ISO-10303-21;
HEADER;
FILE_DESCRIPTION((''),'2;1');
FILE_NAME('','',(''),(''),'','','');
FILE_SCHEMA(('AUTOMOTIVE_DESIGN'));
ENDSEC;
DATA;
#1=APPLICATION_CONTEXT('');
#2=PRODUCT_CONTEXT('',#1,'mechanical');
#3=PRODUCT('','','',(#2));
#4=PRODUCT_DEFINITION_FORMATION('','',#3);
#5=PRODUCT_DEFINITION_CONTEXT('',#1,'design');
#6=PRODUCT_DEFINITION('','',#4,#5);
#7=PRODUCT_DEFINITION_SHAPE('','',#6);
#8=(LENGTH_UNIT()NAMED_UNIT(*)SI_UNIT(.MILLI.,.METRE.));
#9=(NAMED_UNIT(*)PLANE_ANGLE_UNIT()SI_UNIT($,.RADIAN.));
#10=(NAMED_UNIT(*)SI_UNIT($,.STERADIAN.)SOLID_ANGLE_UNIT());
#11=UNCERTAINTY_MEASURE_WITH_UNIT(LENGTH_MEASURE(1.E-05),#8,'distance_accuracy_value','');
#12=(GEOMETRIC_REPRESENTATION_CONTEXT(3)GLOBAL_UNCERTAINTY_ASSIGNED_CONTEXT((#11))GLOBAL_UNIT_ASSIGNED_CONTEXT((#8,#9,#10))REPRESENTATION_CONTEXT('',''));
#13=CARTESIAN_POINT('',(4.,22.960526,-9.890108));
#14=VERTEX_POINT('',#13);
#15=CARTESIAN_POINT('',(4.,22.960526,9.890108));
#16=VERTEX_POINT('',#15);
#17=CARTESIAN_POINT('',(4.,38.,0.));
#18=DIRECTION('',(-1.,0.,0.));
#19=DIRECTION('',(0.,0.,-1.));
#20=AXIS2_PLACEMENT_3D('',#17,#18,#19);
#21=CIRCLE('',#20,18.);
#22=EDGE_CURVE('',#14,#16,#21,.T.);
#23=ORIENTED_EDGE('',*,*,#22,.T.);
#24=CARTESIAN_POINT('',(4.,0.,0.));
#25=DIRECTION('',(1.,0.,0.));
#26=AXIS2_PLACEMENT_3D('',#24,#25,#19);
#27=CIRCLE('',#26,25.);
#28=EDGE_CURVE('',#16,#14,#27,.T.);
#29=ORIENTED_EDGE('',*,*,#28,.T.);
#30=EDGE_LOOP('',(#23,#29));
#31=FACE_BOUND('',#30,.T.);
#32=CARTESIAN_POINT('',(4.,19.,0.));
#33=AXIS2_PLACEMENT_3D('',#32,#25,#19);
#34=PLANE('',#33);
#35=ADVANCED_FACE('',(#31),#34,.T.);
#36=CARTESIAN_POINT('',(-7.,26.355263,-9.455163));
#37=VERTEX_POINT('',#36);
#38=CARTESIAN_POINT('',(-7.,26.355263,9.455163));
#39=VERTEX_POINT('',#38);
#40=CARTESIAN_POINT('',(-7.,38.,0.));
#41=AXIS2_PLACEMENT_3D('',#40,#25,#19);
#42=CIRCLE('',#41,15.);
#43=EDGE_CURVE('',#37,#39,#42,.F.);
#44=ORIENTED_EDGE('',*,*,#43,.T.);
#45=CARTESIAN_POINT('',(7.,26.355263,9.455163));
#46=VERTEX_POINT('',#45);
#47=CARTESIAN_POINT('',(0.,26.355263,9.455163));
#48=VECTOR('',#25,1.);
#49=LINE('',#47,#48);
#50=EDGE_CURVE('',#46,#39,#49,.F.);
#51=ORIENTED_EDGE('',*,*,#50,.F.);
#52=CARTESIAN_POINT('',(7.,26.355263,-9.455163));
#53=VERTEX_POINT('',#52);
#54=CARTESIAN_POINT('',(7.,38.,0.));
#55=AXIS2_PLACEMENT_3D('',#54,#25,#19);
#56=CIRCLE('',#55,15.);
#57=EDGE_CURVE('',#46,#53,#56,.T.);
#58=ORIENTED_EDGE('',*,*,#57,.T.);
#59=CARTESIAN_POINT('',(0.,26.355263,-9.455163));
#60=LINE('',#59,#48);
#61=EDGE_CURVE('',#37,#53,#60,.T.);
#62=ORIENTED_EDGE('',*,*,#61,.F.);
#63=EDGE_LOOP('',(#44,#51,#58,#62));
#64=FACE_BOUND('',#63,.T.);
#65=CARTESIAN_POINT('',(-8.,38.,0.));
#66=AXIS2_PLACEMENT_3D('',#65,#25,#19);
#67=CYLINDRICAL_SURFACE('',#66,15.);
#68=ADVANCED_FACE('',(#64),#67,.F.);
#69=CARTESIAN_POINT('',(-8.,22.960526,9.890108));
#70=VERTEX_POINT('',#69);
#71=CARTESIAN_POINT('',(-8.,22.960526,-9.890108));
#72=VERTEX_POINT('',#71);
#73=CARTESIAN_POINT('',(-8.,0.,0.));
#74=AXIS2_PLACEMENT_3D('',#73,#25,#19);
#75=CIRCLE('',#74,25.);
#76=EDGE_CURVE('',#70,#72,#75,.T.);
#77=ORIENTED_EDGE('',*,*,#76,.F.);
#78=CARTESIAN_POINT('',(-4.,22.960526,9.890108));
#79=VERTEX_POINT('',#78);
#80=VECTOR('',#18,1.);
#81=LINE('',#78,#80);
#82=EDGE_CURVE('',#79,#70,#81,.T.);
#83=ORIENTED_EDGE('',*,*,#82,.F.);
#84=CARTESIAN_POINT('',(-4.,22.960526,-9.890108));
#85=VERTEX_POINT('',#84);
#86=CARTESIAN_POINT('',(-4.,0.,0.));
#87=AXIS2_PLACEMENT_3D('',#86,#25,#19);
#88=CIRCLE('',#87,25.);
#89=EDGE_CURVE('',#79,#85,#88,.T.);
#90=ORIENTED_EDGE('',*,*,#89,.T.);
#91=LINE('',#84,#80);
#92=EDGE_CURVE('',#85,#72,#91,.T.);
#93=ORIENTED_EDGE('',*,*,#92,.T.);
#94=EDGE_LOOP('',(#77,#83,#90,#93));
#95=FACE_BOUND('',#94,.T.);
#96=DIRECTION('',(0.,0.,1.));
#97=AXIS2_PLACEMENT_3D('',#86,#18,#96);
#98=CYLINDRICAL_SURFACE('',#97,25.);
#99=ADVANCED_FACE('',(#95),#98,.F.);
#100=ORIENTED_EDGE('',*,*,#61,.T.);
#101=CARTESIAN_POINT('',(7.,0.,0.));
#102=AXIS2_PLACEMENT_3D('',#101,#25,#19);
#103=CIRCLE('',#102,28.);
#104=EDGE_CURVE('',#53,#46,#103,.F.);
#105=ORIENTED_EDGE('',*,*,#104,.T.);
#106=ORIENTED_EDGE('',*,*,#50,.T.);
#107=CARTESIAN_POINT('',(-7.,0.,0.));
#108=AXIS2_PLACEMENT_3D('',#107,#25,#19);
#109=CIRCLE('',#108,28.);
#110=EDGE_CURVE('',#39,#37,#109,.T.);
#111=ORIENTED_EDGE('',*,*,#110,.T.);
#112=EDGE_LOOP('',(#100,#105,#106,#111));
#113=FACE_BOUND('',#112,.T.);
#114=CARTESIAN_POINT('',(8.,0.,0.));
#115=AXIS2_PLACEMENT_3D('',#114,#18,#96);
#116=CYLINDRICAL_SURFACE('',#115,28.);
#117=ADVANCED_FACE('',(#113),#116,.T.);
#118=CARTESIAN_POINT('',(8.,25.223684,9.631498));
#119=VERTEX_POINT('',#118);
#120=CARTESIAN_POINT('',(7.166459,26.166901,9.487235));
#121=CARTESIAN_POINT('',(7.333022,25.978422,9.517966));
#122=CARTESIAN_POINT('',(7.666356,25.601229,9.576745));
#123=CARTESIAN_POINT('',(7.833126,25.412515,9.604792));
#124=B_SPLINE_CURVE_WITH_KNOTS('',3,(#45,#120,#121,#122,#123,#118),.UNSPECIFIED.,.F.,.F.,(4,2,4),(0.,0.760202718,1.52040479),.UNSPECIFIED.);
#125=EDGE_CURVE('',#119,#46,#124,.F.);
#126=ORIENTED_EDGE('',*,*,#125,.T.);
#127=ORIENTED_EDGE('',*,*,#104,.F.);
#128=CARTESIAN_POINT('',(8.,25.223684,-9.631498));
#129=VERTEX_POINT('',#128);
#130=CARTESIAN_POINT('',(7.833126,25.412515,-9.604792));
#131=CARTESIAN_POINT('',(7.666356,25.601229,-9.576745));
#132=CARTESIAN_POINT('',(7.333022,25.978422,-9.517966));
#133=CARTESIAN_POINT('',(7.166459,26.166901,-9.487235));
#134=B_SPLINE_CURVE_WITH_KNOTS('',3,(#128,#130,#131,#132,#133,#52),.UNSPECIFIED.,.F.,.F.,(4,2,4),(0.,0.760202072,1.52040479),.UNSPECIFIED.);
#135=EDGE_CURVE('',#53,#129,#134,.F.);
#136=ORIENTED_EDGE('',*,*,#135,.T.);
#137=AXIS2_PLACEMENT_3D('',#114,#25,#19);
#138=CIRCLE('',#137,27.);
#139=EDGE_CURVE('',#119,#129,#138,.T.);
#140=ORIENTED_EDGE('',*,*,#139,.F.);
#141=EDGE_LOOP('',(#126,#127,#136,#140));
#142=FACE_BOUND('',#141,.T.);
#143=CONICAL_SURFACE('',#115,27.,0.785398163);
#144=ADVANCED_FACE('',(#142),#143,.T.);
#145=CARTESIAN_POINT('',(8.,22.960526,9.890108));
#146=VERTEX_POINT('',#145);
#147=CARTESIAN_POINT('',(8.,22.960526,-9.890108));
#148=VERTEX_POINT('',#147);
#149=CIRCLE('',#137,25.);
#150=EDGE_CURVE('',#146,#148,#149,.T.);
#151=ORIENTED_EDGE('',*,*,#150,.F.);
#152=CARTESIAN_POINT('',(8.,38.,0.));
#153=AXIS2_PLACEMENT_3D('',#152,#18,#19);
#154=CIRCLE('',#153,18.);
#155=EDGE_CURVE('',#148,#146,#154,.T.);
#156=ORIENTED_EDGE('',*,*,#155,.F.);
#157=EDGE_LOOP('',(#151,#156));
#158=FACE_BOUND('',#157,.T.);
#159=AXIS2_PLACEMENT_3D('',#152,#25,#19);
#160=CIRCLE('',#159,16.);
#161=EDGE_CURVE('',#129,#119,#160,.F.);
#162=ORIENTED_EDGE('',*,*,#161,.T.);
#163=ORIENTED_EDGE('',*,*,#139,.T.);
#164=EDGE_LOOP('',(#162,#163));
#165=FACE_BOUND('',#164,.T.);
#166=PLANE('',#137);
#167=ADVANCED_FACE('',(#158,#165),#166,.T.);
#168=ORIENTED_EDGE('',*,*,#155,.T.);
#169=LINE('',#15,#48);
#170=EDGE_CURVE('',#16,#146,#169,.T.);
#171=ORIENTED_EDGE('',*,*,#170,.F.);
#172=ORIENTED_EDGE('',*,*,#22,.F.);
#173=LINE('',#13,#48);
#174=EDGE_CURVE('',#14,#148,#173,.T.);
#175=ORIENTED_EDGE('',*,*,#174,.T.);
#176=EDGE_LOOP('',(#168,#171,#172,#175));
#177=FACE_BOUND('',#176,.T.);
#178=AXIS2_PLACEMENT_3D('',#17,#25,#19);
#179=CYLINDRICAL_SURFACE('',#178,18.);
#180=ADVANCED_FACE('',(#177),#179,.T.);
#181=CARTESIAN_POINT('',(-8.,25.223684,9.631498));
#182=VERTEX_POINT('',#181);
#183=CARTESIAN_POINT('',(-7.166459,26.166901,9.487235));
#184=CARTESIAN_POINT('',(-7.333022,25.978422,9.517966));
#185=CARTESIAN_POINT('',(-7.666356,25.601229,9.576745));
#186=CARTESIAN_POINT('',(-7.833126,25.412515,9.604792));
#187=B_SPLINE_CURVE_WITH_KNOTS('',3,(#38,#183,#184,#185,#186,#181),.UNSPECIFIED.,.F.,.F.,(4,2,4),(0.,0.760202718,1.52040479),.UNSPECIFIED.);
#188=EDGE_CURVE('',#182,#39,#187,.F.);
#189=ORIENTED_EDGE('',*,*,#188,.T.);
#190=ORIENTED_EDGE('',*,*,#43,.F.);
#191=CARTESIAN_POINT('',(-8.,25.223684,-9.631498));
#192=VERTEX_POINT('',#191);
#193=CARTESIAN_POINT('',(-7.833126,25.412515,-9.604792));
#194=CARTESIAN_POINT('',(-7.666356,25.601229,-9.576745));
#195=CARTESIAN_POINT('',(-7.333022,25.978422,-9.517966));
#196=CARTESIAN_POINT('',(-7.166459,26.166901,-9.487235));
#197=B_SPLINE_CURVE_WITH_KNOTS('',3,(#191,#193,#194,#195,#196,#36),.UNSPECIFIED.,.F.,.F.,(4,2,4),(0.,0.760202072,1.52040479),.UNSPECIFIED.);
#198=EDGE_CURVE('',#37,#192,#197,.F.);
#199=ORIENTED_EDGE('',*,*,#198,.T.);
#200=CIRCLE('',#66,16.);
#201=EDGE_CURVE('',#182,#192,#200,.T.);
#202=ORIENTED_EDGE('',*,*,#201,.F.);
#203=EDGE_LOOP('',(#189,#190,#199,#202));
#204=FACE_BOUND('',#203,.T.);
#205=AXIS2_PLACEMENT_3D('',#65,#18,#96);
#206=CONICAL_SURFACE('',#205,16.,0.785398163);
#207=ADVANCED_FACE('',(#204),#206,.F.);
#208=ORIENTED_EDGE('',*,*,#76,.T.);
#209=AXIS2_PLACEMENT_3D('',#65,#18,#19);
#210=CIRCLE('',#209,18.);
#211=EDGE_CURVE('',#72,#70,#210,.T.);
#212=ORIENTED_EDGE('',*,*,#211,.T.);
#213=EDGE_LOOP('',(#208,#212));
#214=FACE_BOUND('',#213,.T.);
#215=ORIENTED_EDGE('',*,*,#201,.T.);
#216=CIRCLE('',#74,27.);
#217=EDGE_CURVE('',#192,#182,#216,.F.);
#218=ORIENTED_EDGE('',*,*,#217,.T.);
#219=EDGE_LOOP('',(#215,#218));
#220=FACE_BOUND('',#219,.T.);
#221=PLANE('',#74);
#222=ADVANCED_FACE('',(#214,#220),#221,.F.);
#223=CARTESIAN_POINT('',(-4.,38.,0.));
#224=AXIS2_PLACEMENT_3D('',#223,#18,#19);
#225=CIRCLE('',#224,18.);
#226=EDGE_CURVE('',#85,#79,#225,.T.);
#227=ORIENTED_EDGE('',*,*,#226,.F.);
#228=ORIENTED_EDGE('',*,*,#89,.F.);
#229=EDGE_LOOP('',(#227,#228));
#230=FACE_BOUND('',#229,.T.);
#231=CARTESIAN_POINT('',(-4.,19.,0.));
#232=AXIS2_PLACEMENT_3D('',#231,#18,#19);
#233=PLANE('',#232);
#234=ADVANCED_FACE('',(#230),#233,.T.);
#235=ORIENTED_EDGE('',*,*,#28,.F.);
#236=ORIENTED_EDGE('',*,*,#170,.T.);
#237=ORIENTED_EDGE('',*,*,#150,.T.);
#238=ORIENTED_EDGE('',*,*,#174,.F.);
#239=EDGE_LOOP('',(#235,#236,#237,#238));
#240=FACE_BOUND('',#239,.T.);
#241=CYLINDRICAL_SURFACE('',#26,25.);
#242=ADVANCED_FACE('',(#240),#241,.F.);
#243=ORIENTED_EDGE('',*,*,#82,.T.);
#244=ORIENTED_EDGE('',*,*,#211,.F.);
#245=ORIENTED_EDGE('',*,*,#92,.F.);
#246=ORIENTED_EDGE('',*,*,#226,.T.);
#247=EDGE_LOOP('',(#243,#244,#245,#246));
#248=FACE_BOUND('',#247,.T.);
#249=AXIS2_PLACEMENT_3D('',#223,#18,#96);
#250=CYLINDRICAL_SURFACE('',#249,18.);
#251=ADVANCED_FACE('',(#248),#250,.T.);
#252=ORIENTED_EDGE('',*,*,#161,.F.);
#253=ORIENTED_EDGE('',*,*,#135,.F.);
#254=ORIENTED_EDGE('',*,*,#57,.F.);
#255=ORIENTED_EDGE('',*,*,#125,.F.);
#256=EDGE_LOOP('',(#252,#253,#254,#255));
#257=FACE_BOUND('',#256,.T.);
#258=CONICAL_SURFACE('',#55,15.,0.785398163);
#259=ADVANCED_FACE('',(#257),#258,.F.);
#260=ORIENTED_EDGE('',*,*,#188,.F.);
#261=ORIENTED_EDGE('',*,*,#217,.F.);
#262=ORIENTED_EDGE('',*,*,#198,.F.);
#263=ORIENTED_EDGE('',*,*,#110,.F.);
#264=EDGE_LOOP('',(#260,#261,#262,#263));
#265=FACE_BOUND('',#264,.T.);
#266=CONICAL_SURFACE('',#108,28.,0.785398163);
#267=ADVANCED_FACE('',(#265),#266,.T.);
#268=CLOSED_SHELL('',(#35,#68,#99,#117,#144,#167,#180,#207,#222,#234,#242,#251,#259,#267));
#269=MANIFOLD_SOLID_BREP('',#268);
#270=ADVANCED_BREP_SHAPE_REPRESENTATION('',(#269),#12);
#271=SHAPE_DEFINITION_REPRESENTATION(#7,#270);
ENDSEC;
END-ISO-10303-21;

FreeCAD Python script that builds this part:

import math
import FreeCAD as App
import Part
import Sketcher
from FreeCAD import Vector


def edges_at(feature, points):
    """Names of the edges that pass closest to the given points."""
    edges = feature.Shape.Edges
    near = lambda p: min(range(len(edges)), key=lambda i: edges[i].distToShape(Part.Vertex(*p))[0])
    return sorted({f"Edge{near(p) + 1}" for p in points})

doc = App.newDocument("Part")
body = doc.addObject("PartDesign::Body", "Body")

sketch1 = body.newObject("Sketcher::SketchObject", "Sketch")
sketch1.AttachmentSupport = (doc.getObject("YZ_Plane"), [""])
sketch1.MapMode = "FlatFace"
sketch1.addGeometry(Part.Circle(Vector(0, 0, 0), Vector(0, 0, 1), 28), False)
sketch1.addConstraint([
    Sketcher.Constraint("Coincident", 0, 3, -1, 1),
    Sketcher.Constraint("Diameter", 0, 56.0),
])
pad1 = body.newObject("PartDesign::Pad", "Pad")
pad1.Profile = sketch1
pad1.Length = 16
pad1.Midplane = True

sketch2 = body.newObject("Sketcher::SketchObject", "Sketch001")
sketch2.AttachmentSupport = (doc.getObject("YZ_Plane"), [""])
sketch2.MapMode = "FlatFace"
sketch2.AttachmentOffset = App.Placement(Vector(0, 0, 8), App.Rotation())
sketch2.addGeometry(Part.Circle(Vector(38, 0, 0), Vector(0, 0, 1), 15), False)
sketch2.addConstraint([
    Sketcher.Constraint("PointOnObject", 0, 3, -1),
    Sketcher.Constraint("Diameter", 0, 30.0),
    Sketcher.Constraint("DistanceX", -1, 1, 0, 3, 38.0),
])
pocket1 = body.newObject("PartDesign::Pocket", "Pocket")
pocket1.Profile = sketch2
pocket1.Type = "ThroughAll"
doc.recompute()

chamfer = body.newObject("PartDesign::Chamfer", "Chamfer")
chamfer.Base = (pocket1, edges_at(pocket1, [
    (-8, -28, 0),
    (8, -28, 0),
    (8, 23, 0),
    (-8, 23, 0),
]))
chamfer.Size = 1

sketch3 = body.newObject("Sketcher::SketchObject", "Sketch002")
sketch3.AttachmentSupport = (doc.getObject("YZ_Plane"), [""])
sketch3.MapMode = "FlatFace"
sketch3.AttachmentOffset = App.Placement(Vector(0, 0, 8), App.Rotation())
sketch3.addGeometry([
    Part.ArcOfCircle(Part.Circle(Vector(0, 0, 0), Vector(0, 0, 1), 25), math.radians(23), math.radians(337)),
    Part.ArcOfCircle(Part.Circle(Vector(38, 0, 0), Vector(0, 0, 1), 18), math.radians(147), math.radians(213)),
], False)
sketch3.addConstraint([
    Sketcher.Constraint("Coincident", 0, 1, 1, 1),
    Sketcher.Constraint("Coincident", 1, 2, 0, 2),
    Sketcher.Constraint("Coincident", 0, 3, -1, 1),
    Sketcher.Constraint("PointOnObject", 1, 3, -1),
    Sketcher.Constraint("Radius", 0, 25.0),
    Sketcher.Constraint("Radius", 1, 18.0),
    Sketcher.Constraint("DistanceX", -1, 1, 1, 3, 38.0),
])
pocket2 = body.newObject("PartDesign::Pocket", "Pocket001")
pocket2.Profile = sketch3
pocket2.Length = 4
doc.recompute()

mirrored = body.newObject("PartDesign::Mirrored", "Mirrored")
mirrored.Originals = [pocket2]
mirrored.MirrorPlane = (doc.getObject("YZ_Plane"), [""])
body.Tip = mirrored

doc.recompute()
